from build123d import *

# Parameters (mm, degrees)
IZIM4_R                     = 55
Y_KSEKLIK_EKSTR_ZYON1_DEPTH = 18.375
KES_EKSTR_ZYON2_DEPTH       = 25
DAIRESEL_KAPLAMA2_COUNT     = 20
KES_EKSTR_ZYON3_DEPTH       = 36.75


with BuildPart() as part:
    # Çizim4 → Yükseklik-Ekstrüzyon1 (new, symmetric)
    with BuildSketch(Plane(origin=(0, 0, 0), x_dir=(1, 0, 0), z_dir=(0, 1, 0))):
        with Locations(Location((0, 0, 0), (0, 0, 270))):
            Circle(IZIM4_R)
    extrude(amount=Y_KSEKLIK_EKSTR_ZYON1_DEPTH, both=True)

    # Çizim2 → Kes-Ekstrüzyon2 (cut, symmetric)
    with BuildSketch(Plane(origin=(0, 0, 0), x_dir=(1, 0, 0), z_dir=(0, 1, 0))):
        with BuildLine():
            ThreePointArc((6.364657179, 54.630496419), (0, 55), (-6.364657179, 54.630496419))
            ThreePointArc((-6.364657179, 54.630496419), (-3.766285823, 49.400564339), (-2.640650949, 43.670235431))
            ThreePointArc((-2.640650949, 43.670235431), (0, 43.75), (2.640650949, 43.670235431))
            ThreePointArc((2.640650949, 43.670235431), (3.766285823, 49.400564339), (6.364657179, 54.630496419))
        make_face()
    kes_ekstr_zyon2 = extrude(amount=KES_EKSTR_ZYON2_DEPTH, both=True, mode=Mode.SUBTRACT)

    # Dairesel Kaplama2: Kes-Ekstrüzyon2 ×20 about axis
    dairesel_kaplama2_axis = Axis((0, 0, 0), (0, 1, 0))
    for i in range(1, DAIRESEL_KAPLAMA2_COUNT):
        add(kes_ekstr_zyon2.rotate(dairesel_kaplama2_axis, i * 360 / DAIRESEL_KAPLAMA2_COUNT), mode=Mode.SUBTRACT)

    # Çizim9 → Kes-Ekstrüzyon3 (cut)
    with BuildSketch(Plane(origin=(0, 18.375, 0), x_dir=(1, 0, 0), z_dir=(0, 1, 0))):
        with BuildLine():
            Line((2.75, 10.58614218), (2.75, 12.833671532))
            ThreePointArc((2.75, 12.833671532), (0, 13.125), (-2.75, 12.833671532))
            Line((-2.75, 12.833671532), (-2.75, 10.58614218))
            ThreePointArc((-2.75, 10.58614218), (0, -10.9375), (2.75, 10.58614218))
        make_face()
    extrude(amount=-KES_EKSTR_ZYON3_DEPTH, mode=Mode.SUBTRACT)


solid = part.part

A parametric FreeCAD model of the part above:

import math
import FreeCAD as App
import Part
import Sketcher

V = App.Vector

doc = App.newDocument("Part")
body = doc.addObject("PartDesign::Body", "Body")

# Sketch on XZ plane
sketch1 = body.newObject("Sketcher::SketchObject", "Sketch")
sketch1.AttachmentSupport = (doc.getObject("XZ_Plane"), [""])
sketch1.MapMode = "FlatFace"
sketch1.addGeometry(Part.Circle(V(0, 0, 0), V(0, 0, 1), 55), False)
sketch1.addConstraint([
    Sketcher.Constraint("Coincident", 0, 3, -1, 1),
    Sketcher.Constraint("Diameter", 0, 110.0),
])
pad1 = body.newObject("PartDesign::Pad", "Pad")
pad1.Profile = sketch1
pad1.Length = 36.75
pad1.Midplane = True

# Sketch on XZ plane
sketch2 = body.newObject("Sketcher::SketchObject", "Sketch001")
sketch2.AttachmentSupport = (doc.getObject("XZ_Plane"), [""])
sketch2.MapMode = "FlatFace"
sketch2.addGeometry([
    Part.ArcOfCircle(Part.Circle(V(0, 0, 0), V(0, 0, 1), 55), math.radians(-96.65), math.radians(-83.35)),
    Part.ArcOfCircle(Part.Circle(V(-25, -42, 0), V(0, 0, 1), 22), math.radians(-34), math.radians(-3)),
    Part.ArcOfCircle(Part.Circle(V(0, 0, 0), V(0, 0, 1), 44), math.radians(-93.46), math.radians(-86.54)),
    Part.ArcOfCircle(Part.Circle(V(25, -42, 0), V(0, 0, 1), 22), math.radians(-177), math.radians(-146)),
], False)
sketch2.addConstraint([
    Sketcher.Constraint("Coincident", 0, 1, 1, 1),
    Sketcher.Constraint("Coincident", 1, 2, 2, 1),
    Sketcher.Constraint("Coincident", 2, 2, 3, 1),
    Sketcher.Constraint("Coincident", 3, 2, 0, 2),
    Sketcher.Constraint("Coincident", 0, 3, -1, 1),
    Sketcher.Constraint("Coincident", 2, 3, -1, 1),
    Sketcher.Constraint("Equal", 1, 3),
    Sketcher.Constraint("Symmetric", 1, 3, 3, 3, -2),
    Sketcher.Constraint("Radius", 0, 55.0),
    Sketcher.Constraint("Radius", 2, 43.75),
    Sketcher.Constraint("Radius", 1, 21.92565),
    Sketcher.Constraint("DistanceX", 1, 2, 2, 2, 5.281302),
    Sketcher.Constraint("DistanceX", 1, 3, 3, 3, 49.052652),
])
pocket1 = body.newObject("PartDesign::Pocket", "Pocket")
pocket1.Profile = sketch2
pocket1.Length = 50
pocket1.Midplane = True
doc.recompute()

polarpattern = body.newObject("PartDesign::PolarPattern", "PolarPattern")
polarpattern.Originals = [pocket1]
polarpattern.Axis = (doc.getObject("Y_Axis"), [""])
polarpattern.Angle = 360
polarpattern.Occurrences = 20
body.Tip = polarpattern

# Sketch on XZ plane
sketch3 = body.newObject("Sketcher::SketchObject", "Sketch002")
sketch3.AttachmentSupport = (doc.getObject("XZ_Plane"), [""])
sketch3.MapMode = "FlatFace"
sketch3.AttachmentOffset = App.Placement(V(0, 0, -18.375), App.Rotation())
sketch3.addGeometry([
    Part.LineSegment(V(2.8, -10.6, 0), V(2.8, -12.8, 0)),
    Part.ArcOfCircle(Part.Circle(V(0, 0, 0), V(0, 0, 1), 13.1), math.radians(-102), math.radians(-78)),
    Part.LineSegment(V(-2.8, -12.8, 0), V(-2.8, -10.6, 0)),
    Part.ArcOfCircle(Part.Circle(V(0, 0, 0), V(0, 0, 1), 10.9), math.radians(-75), math.radians(255)),
], False)
sketch3.addConstraint([
    Sketcher.Constraint("Coincident", 0, 2, 1, 2),
    Sketcher.Constraint("Coincident", 1, 1, 2, 1),
    Sketcher.Constraint("Coincident", 2, 2, 3, 2),
    Sketcher.Constraint("Coincident", 3, 1, 0, 1),
    Sketcher.Constraint("Vertical", 0),
    Sketcher.Constraint("Vertical", 2),
    Sketcher.Constraint("Coincident", 1, 3, -1, 1),
    Sketcher.Constraint("Coincident", 3, 3, -1, 1),
    Sketcher.Constraint("Horizontal", 0, 2, 1, 1),
    Sketcher.Constraint("Radius", 1, 13.125),
    Sketcher.Constraint("Radius", 3, 10.9375),
    Sketcher.Constraint("DistanceX", 1, 1, 0, 2, 5.5),
])
pocket2 = body.newObject("PartDesign::Pocket", "Pocket001")
pocket2.Profile = sketch3
pocket2.Length = 36.75
pocket2.Reversed = True

doc.recompute()
